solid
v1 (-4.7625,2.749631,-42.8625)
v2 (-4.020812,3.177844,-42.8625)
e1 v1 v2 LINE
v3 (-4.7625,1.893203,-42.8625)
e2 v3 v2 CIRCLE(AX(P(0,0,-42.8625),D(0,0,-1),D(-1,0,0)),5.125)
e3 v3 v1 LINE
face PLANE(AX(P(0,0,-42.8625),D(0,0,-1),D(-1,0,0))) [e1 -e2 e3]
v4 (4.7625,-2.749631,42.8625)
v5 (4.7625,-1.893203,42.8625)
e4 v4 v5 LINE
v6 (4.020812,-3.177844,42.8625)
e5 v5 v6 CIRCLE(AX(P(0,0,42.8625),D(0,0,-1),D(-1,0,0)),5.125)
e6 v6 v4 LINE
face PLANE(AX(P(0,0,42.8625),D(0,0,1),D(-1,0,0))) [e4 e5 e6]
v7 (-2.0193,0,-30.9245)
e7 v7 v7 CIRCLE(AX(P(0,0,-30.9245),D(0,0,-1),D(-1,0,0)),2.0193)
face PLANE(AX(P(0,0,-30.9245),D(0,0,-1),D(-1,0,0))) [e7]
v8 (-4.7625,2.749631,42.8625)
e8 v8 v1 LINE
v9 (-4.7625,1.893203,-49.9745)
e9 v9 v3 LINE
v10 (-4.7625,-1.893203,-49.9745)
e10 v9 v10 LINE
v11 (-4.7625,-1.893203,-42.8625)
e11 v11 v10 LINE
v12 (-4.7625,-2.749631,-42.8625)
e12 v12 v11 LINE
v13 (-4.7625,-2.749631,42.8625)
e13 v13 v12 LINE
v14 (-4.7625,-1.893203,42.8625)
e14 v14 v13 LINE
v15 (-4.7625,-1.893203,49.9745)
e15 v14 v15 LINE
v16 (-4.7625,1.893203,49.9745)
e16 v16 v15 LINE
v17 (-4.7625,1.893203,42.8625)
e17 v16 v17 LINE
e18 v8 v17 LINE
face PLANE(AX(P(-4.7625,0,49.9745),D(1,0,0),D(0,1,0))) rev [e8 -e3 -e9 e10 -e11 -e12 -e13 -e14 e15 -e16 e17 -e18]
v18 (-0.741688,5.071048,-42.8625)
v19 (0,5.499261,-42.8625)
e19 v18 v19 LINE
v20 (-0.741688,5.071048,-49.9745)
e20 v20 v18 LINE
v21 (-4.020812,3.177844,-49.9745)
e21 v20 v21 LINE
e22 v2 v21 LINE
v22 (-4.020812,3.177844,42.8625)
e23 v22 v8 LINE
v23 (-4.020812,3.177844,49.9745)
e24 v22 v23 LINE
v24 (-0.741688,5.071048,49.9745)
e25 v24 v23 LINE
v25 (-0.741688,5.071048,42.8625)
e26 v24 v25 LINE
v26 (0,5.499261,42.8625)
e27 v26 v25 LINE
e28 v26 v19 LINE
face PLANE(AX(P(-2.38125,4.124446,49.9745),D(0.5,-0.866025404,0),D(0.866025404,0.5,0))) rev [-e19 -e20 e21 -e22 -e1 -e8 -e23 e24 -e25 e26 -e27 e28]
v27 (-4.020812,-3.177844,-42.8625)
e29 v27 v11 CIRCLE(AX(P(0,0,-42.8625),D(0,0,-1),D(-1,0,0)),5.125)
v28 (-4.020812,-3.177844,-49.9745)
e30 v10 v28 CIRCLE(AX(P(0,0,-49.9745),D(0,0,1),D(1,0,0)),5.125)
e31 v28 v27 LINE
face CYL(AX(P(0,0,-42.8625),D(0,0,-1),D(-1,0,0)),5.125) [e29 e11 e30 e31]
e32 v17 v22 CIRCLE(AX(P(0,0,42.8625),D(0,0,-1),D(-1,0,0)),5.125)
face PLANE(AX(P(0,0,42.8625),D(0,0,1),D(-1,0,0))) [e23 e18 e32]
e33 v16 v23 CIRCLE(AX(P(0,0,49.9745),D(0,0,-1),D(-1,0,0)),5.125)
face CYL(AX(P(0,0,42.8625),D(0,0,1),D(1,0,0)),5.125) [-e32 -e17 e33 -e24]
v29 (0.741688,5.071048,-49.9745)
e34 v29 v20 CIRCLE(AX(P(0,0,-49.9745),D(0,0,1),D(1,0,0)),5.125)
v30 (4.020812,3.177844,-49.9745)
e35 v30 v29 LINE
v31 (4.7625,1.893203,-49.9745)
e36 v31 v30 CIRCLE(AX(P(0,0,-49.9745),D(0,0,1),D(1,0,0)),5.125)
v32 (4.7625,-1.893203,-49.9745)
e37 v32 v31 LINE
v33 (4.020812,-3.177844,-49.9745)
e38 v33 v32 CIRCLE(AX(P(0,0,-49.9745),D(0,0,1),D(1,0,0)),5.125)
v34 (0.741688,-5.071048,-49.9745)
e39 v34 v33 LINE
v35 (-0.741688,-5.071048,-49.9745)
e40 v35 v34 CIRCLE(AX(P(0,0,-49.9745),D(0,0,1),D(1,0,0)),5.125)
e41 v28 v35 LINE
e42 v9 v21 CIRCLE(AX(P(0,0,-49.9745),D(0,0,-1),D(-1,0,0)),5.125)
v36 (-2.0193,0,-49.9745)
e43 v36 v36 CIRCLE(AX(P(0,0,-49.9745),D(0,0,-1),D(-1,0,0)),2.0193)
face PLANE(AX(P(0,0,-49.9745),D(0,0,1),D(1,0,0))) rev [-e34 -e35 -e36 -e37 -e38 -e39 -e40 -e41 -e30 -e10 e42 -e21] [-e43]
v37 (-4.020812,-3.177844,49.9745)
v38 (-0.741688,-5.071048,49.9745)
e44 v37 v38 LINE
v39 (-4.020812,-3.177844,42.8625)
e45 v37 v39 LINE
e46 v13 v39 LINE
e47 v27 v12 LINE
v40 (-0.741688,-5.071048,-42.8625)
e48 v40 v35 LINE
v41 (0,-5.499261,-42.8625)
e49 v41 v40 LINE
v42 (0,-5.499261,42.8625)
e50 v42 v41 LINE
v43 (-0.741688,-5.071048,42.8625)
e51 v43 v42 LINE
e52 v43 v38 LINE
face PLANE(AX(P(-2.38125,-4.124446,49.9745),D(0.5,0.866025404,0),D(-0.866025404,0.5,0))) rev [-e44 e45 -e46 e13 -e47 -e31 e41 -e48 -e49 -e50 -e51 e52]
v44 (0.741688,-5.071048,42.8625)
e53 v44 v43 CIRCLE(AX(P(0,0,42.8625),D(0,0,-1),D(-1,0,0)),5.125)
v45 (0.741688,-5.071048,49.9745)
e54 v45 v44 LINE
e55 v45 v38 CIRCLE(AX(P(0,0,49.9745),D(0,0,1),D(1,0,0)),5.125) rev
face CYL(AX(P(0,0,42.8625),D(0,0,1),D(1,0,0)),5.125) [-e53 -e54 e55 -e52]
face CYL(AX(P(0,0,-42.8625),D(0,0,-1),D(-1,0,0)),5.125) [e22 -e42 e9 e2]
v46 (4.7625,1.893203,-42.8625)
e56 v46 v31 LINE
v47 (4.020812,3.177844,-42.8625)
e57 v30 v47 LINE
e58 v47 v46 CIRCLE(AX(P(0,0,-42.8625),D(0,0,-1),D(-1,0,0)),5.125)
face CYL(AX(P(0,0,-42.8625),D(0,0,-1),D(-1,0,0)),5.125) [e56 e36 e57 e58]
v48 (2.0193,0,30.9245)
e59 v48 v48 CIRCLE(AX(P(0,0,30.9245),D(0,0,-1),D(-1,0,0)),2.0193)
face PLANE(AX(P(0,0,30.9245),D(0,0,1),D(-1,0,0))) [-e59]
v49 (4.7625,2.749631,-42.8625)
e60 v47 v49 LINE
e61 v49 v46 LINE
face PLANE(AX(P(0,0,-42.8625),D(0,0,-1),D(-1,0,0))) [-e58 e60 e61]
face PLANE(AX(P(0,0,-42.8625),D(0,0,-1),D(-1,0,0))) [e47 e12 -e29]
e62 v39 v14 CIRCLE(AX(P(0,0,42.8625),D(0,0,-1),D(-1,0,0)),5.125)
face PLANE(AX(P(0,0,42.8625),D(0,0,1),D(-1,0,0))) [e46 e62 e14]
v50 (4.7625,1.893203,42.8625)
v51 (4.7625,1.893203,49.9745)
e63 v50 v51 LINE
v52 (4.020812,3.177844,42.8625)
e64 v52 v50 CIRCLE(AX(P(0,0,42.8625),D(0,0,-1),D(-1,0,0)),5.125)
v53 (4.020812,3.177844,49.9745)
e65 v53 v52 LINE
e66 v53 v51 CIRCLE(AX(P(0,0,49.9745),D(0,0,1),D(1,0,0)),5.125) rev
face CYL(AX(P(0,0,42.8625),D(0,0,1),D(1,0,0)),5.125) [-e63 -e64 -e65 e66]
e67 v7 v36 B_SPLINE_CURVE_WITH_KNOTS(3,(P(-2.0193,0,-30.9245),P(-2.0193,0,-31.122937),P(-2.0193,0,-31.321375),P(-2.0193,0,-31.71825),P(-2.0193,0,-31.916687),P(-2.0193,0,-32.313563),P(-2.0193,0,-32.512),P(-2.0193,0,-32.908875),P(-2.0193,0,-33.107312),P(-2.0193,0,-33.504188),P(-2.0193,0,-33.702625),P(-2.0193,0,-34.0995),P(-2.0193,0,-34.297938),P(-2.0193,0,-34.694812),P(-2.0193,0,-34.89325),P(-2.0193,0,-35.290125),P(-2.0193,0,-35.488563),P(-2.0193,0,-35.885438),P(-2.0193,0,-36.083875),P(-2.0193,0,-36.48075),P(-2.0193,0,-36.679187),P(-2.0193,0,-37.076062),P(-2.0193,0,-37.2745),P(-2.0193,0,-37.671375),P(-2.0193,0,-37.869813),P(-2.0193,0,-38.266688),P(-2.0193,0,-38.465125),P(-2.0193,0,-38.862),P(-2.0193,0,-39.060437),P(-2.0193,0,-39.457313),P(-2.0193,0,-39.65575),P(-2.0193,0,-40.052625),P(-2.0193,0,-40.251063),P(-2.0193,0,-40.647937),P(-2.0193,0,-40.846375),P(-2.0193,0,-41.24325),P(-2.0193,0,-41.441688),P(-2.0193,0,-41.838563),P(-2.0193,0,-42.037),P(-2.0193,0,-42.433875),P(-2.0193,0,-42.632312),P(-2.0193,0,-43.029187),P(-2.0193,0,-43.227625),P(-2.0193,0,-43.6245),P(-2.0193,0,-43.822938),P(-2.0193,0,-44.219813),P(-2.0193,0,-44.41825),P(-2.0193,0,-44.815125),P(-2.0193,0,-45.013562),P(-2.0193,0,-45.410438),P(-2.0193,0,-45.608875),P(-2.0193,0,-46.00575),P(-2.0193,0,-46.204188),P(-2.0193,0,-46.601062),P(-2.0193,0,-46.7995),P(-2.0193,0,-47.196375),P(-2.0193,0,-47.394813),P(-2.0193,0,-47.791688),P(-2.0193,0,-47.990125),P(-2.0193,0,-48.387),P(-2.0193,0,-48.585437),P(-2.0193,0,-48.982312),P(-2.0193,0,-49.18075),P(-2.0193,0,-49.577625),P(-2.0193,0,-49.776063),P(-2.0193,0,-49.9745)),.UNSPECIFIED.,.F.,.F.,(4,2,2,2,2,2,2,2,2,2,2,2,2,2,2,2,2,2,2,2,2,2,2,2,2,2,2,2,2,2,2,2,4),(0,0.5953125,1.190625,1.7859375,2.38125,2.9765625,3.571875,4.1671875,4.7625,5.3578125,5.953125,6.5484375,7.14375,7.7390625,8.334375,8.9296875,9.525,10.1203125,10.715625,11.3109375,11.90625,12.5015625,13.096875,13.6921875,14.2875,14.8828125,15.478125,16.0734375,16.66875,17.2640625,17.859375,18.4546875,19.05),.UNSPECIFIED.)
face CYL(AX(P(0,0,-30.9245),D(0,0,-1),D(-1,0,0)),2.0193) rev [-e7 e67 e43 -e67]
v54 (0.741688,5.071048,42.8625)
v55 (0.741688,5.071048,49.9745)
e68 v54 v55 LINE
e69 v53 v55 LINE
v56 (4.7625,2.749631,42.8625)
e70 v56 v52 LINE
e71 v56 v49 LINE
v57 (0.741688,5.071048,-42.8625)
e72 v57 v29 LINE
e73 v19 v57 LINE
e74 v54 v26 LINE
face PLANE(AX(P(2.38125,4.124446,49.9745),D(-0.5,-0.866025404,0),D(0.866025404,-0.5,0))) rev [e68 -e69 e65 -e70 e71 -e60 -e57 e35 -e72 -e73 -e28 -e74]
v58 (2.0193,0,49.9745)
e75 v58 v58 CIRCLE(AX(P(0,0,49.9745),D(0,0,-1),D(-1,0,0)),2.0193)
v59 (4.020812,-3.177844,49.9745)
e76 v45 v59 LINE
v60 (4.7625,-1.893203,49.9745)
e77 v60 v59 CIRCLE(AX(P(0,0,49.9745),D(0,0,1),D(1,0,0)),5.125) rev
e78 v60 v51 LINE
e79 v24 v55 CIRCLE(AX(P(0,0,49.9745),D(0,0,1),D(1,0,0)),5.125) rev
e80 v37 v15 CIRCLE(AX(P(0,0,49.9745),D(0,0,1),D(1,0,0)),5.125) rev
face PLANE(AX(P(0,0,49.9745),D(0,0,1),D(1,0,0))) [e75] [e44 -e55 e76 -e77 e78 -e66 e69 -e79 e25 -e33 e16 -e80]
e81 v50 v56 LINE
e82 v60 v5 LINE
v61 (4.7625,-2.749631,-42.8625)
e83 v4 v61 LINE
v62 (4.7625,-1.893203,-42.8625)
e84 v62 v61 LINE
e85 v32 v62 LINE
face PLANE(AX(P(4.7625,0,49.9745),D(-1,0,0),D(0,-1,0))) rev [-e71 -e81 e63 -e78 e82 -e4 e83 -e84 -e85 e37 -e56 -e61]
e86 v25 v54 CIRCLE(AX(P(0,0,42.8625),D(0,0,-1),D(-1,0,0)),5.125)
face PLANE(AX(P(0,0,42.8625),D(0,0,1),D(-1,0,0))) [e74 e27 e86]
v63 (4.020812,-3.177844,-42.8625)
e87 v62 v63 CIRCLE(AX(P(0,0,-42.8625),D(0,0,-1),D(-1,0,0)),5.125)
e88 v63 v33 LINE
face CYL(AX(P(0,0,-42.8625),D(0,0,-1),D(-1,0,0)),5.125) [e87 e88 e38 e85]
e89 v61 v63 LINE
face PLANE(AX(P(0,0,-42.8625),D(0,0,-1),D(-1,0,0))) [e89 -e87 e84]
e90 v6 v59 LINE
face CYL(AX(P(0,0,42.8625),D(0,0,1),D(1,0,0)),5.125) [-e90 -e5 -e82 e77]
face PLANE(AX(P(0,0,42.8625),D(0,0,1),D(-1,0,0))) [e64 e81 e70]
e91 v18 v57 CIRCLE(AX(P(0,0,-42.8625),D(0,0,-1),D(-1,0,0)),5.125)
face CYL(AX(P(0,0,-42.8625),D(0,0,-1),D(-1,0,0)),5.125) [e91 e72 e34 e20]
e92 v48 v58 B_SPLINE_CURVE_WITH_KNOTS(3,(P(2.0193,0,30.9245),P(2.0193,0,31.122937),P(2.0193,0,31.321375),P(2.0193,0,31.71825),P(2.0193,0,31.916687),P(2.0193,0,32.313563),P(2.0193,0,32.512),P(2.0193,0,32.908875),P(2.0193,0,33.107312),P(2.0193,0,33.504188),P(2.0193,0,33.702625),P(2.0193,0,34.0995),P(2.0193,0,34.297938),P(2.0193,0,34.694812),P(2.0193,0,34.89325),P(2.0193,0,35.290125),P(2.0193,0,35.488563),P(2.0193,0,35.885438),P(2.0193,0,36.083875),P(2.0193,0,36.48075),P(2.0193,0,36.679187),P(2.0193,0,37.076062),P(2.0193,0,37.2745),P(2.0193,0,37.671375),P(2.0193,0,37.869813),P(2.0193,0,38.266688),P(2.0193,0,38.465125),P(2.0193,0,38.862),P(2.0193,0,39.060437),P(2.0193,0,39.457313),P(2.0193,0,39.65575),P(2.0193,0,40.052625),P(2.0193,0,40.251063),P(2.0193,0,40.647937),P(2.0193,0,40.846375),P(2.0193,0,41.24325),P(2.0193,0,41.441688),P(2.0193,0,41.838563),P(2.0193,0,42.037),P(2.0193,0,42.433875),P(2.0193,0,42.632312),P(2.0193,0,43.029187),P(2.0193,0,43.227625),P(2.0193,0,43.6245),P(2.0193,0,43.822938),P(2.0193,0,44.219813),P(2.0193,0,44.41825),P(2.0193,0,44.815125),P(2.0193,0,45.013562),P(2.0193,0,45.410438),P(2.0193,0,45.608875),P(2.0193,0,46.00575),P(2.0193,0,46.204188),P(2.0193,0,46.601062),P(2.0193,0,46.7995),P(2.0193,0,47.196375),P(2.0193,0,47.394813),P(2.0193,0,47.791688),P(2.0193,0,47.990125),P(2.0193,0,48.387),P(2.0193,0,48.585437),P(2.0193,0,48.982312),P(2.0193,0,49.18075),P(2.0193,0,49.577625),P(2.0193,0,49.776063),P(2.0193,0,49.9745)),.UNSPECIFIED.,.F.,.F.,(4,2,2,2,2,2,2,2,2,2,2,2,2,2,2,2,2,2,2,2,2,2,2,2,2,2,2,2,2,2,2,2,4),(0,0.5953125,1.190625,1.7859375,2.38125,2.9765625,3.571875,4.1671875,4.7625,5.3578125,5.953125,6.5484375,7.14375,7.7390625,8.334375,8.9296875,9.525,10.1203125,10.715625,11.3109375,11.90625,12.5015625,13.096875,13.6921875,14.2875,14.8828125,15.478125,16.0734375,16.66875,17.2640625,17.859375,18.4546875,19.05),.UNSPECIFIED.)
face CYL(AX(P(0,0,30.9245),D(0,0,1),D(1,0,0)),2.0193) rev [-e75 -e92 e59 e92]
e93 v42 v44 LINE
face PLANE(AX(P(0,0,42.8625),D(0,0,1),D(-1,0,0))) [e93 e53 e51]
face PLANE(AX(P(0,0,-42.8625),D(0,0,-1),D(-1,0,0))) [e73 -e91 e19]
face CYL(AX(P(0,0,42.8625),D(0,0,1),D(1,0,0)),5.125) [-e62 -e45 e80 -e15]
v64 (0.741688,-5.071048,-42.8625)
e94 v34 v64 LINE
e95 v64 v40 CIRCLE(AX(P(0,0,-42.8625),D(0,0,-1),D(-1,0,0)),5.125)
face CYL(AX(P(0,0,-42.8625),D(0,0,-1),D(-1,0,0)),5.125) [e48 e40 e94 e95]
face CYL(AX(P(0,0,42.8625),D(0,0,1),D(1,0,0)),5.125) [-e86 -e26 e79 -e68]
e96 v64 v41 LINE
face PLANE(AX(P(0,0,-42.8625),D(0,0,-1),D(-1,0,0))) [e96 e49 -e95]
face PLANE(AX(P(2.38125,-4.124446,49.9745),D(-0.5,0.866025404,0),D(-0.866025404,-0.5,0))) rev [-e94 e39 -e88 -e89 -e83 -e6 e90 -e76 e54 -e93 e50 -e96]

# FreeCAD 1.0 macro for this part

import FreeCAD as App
import Part
import Sketcher
from FreeCAD import Vector
Q = App.Units.Quantity

doc = App.newDocument("Part")
body = doc.addObject("PartDesign::Body", "Body")

sketch1 = body.newObject("Sketcher::SketchObject", "Sketch")
sketch1.AttachmentSupport = (doc.getObject("XY_Plane"), [""])
sketch1.MapMode = "FlatFace"
sketch1.addGeometry(Part.LineSegment(Vector(4.7625, 2.749631, 0), Vector(0, 5.499261, 0)), False)
sketch1.addGeometry(Part.LineSegment(Vector(0, 5.499261, 0), Vector(-4.7625, 2.749631, 0)), False)
sketch1.addGeometry(Part.LineSegment(Vector(-4.7625, 2.749631, 0), Vector(-4.7625, -2.749631, 0)), False)
sketch1.addGeometry(Part.LineSegment(Vector(-4.7625, -2.749631, 0), Vector(0, -5.499261, 0)), False)
sketch1.addGeometry(Part.LineSegment(Vector(0, -5.499261, 0), Vector(4.7625, -2.749631, 0)), False)
sketch1.addGeometry(Part.LineSegment(Vector(4.7625, -2.749631, 0), Vector(4.7625, 2.749631, 0)), False)
sketch1.addConstraint(Sketcher.Constraint("Coincident", 0, 2, 1, 1))
sketch1.addConstraint(Sketcher.Constraint("Coincident", 1, 2, 2, 1))
sketch1.addConstraint(Sketcher.Constraint("Coincident", 2, 2, 3, 1))
sketch1.addConstraint(Sketcher.Constraint("Coincident", 3, 2, 4, 1))
sketch1.addConstraint(Sketcher.Constraint("Coincident", 4, 2, 5, 1))
sketch1.addConstraint(Sketcher.Constraint("Coincident", 5, 2, 0, 1))
sketch1.addConstraint(Sketcher.Constraint("Vertical", 2))
sketch1.addConstraint(Sketcher.Constraint("Vertical", 5))
sketch1.addConstraint(Sketcher.Constraint("Symmetric", 0, 2, 3, 2, -1, 1))
sketch1.addConstraint(Sketcher.Constraint("Symmetric", 1, 2, 4, 2, -1, 1))
sketch1.addConstraint(Sketcher.Constraint("PointOnObject", 0, 2, -2))
sketch1.addConstraint(Sketcher.Constraint("Parallel", 0, 3))
sketch1.addConstraint(Sketcher.Constraint("Horizontal", 2, 2, 4, 2))
sketch1.addConstraint(Sketcher.Constraint("Angle", 0, Q("150 deg")))
sketch1.addConstraint(Sketcher.Constraint("DistanceX", 1, 2, -1, 1, Q("0.1875 in")))
sketch1.addConstraint(Sketcher.Constraint("DistanceY", 2, 2, 2, 1, 5.499261))
pad1 = body.newObject("PartDesign::Pad", "Pad")
pad1.Profile = sketch1
pad1.Length = Q("3.935 in")
pad1.Midplane = True

sketch2 = body.newObject("Sketcher::SketchObject", "Sketch001")
sketch2.AttachmentSupport = (doc.getObject("XY_Plane"), [""])
sketch2.MapMode = "FlatFace"
sketch2.AttachmentOffset = App.Placement(Vector(0, 0, -1.9675 * 25.4), App.Rotation())
sketch2.addGeometry(Part.Circle(Vector(0, 0, 0), Vector(0, 0, 1), 2.0193), False)
sketch2.addConstraint(Sketcher.Constraint("Coincident", 0, 3, -1, 1))
sketch2.addConstraint(Sketcher.Constraint("Diameter", 0, Q("0.159 in")))
pocket1 = body.newObject("PartDesign::Pocket", "Pocket")
pocket1.Profile = sketch2
pocket1.Length = Q("0.75 in")
pocket1.Reversed = True
doc.recompute()

mirrored = body.newObject("PartDesign::Mirrored", "Mirrored")
mirrored.Originals = [pocket1]
mirrored.MirrorPlane = (doc.getObject("XY_Plane"), [""])
body.Tip = mirrored

sketch3 = body.newObject("Sketcher::SketchObject", "Sketch002")
sketch3.AttachmentSupport = (doc.getObject("XY_Plane"), [""])
sketch3.MapMode = "FlatFace"
sketch3.AttachmentOffset = App.Placement(Vector(0, 0, -1.9675 * 25.4), App.Rotation())
sketch3.addGeometry(Part.Circle(Vector(0, 0, 0), Vector(0, 0, 1), 11.064818), False)
sketch3.addGeometry(Part.Circle(Vector(0, 0, 0), Vector(0, 0, 1), 5.125), False)
sketch3.addConstraint(Sketcher.Constraint("Coincident", 0, 3, -1, 1))
sketch3.addConstraint(Sketcher.Constraint("Coincident", 1, 3, -1, 1))
sketch3.addConstraint(Sketcher.Constraint("Diameter", 1, 10.25))
sketch3.addConstraint(Sketcher.Constraint("Diameter", 0, 22.129636))
pocket2 = body.newObject("PartDesign::Pocket", "Pocket001")
pocket2.Profile = sketch3
pocket2.Length = Q("0.28 in")
pocket2.Reversed = True
doc.recompute()

mirrored2 = body.newObject("PartDesign::Mirrored", "Mirrored001")
mirrored2.Originals = [pocket2]
mirrored2.MirrorPlane = (doc.getObject("XY_Plane"), [""])
body.Tip = mirrored2

doc.recompute()
